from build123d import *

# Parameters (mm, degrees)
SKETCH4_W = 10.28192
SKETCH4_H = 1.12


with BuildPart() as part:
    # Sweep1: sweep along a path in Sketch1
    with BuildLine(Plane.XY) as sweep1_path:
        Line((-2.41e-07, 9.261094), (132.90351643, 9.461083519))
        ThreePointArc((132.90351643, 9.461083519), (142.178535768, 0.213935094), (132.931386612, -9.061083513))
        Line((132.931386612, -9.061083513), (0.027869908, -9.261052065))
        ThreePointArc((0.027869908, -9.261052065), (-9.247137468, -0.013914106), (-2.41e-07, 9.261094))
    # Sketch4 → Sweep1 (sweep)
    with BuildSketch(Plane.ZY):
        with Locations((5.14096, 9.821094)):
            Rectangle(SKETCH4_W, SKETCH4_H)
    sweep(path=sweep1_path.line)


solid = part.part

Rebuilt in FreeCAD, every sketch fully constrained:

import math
import FreeCAD as App
import Part
import Sketcher


def add_polygon(sketch, points):
    """Adds a closed chain of lines whose ends are joined by coincident constraints."""
    first, n = sketch.GeometryCount, len(points)
    for a, b in zip(points, points[1:] + points[:1]):
        sketch.addGeometry(Part.LineSegment(App.Vector(*a, 0), App.Vector(*b, 0)), False)
    for i in range(n):
        sketch.addConstraint(Sketcher.Constraint("Coincident", first + i, 2, first + (i + 1) % n, 1))

doc = App.newDocument("Part")
params = doc.addObject("Spreadsheet::Sheet", "Params")
for row, (alias, value) in enumerate([
    ("sketch1_width", "1.12 mm"),
], start=1):
    params.set(f"A{row}", alias)
    params.set(f"B{row}", "=" + value)
    params.setAlias(f"B{row}", alias)

body = doc.addObject("PartDesign::Body", "Body")

sketch1 = doc.addObject("Sketcher::SketchObject", "Sketch")
body.addObject(sketch1)
sketch1.AttachmentSupport = (doc.YZ_Plane, [""])
sketch1.MapMode = "FlatFace"
add_polygon(sketch1, [(10.4, 0), (9.3, 0), (9.3, 10.3), (10.4, 10.3)])
sketch1.addConstraint(Sketcher.Constraint("Horizontal", 0))
sketch1.addConstraint(Sketcher.Constraint("Vertical", 1))
sketch1.addConstraint(Sketcher.Constraint("Horizontal", 2))
sketch1.addConstraint(Sketcher.Constraint("Vertical", 3))
sketch1.addConstraint(Sketcher.Constraint("PointOnObject", 0, 2, -1))
sketch1.addConstraint(Sketcher.Constraint("DistanceX", 0, 2, 0, 1, 1.12))
sketch1.addConstraint(Sketcher.Constraint("DistanceY", 1, 1, 1, 2, 10.28192))
sketch1.addConstraint(Sketcher.Constraint("DistanceX", -1, 1, 0, 2, 9.261094))
sketch1.setExpression("Constraints[9]", "Params.sketch1_width")

sketch2 = doc.addObject("Sketcher::SketchObject", "Sketch001")
body.addObject(sketch2)
sketch2.AttachmentSupport = (doc.XY_Plane, [""])
sketch2.MapMode = "FlatFace"
sketch2.addGeometry(Part.LineSegment(App.Vector(0, 9, 0), App.Vector(133, 9, 0)), False)
sketch2.addGeometry(Part.ArcOfCircle(Part.Circle(App.Vector(133, 0, 0), App.Vector(0, 0, 1), 9), math.radians(-90), math.radians(90)), False)
sketch2.addGeometry(Part.LineSegment(App.Vector(133, -9, 0), App.Vector(0, -9, 0)), False)
sketch2.addGeometry(Part.ArcOfCircle(Part.Circle(App.Vector(0, 0, 0), App.Vector(0, 0, 1), 9), math.radians(90), math.radians(270)), False)
sketch2.addConstraint(Sketcher.Constraint("Tangent", 0, 2, 1, 2))
sketch2.addConstraint(Sketcher.Constraint("Tangent", 1, 1, 2, 1))
sketch2.addConstraint(Sketcher.Constraint("Tangent", 2, 2, 3, 2))
sketch2.addConstraint(Sketcher.Constraint("Tangent", 3, 1, 0, 1))
sketch2.addConstraint(Sketcher.Constraint("PointOnObject", 3, 1, -2))
sketch2.addConstraint(Sketcher.Constraint("Parallel", 0, 2))
sketch2.addConstraint(Sketcher.Constraint("DistanceY", -1, 1, 1, 3, 0.2))
sketch2.addConstraint(Sketcher.Constraint("Radius", 1, 9.261094))
sketch2.addConstraint(Sketcher.Constraint("DistanceX", -1, 1, 2, 2, 0.02787))
sketch2.addConstraint(Sketcher.Constraint("DistanceX", 3, 3, 0, 2, 132.889581))
doc.recompute()

additivepipe = doc.addObject("PartDesign::AdditivePipe", "AdditivePipe")
body.addObject(additivepipe)
additivepipe.Profile = sketch1
additivepipe.Spine = (sketch2, ["Edge1", "Edge2", "Edge3", "Edge4"])

doc.recompute()
